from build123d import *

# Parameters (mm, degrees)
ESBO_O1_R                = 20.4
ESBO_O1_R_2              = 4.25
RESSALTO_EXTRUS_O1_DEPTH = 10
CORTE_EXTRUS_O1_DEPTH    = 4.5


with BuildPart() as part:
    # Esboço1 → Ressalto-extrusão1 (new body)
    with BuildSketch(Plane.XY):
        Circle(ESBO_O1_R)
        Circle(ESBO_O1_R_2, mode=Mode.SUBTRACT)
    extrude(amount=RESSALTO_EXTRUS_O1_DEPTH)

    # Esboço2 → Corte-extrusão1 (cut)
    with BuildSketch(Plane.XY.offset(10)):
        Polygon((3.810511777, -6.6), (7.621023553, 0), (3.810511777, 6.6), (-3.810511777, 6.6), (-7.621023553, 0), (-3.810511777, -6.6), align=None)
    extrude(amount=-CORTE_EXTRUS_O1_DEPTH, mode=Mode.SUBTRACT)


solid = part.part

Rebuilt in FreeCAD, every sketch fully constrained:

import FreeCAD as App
import Part
import Sketcher
Q = App.Units.Quantity


def add_polygon(sketch, points):
    """Adds a closed chain of lines whose ends are joined by coincident constraints."""
    first, n = sketch.GeometryCount, len(points)
    for a, b in zip(points, points[1:] + points[:1]):
        sketch.addGeometry(Part.LineSegment(App.Vector(*a, 0), App.Vector(*b, 0)), False)
    for i in range(n):
        sketch.addConstraint(Sketcher.Constraint("Coincident", first + i, 2, first + (i + 1) % n, 1))

doc = App.newDocument("Part")
body = doc.addObject("PartDesign::Body", "Body")

sketch1 = body.newObject("Sketcher::SketchObject", "Sketch")
sketch1.AttachmentSupport = (doc.getObject("XY_Plane"), [""])
sketch1.MapMode = "FlatFace"
sketch1.addGeometry([
    Part.Circle(App.Vector(0, 0, 0), App.Vector(0, 0, 1), 20.4),
    Part.Circle(App.Vector(0, 0, 0), App.Vector(0, 0, 1), 4.25),
], False)
sketch1.addConstraint([
    Sketcher.Constraint("Coincident", 0, 3, -1, 1),
    Sketcher.Constraint("Coincident", 1, 3, -1, 1),
    Sketcher.Constraint("Diameter", 0, 40.8),
    Sketcher.Constraint("Diameter", 1, 8.5),
])
pad1 = body.newObject("PartDesign::Pad", "Pad")
pad1.Profile = sketch1
pad1.Length = 10

sketch2 = body.newObject("Sketcher::SketchObject", "Sketch001")
sketch2.AttachmentSupport = (doc.getObject("XY_Plane"), [""])
sketch2.MapMode = "FlatFace"
sketch2.AttachmentOffset = App.Placement(App.Vector(0, 0, 10), App.Rotation())
add_polygon(sketch2, [(3.810512, -6.6), (7.621024, 0), (3.810512, 6.6), (-3.810512, 6.6), (-7.621024, 0), (-3.810512, -6.6)])
sketch2.addConstraint([
    Sketcher.Constraint("Horizontal", 2),
    Sketcher.Constraint("Horizontal", 5),
    Sketcher.Constraint("Symmetric", 0, 2, 3, 2, -1, 1),
    Sketcher.Constraint("Symmetric", 1, 2, 4, 2, -1, 1),
    Sketcher.Constraint("PointOnObject", 0, 2, -1),
    Sketcher.Constraint("Parallel", 0, 3),
    Sketcher.Constraint("Vertical", 2, 2, 4, 2),
    Sketcher.Constraint("Angle", 0, Q("60 deg")),
    Sketcher.Constraint("DistanceY", -1, 1, 1, 2, 6.6),
    Sketcher.Constraint("DistanceX", 2, 2, 2, 1, 7.621024),
])
pocket1 = body.newObject("PartDesign::Pocket", "Pocket")
pocket1.Profile = sketch2
pocket1.Length = 4.5

doc.recompute()
